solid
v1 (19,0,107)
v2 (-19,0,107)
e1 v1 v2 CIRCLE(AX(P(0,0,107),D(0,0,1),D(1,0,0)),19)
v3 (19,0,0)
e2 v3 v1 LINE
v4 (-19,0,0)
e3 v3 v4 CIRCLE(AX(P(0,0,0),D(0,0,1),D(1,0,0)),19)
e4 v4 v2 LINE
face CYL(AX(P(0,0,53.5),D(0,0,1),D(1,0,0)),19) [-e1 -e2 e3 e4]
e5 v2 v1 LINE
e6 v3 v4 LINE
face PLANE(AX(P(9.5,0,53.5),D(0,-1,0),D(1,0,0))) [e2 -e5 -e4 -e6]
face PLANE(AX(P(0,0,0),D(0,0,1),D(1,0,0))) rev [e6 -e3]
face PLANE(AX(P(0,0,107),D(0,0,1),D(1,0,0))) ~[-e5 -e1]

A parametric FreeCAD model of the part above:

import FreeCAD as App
import Part
import Sketcher
Q = App.Units.Quantity

doc = App.newDocument("Part")
body = doc.addObject("PartDesign::Body", "Body")

# Sketch on XZ plane
sketch1 = body.newObject("Sketcher::SketchObject", "Sketch")
sketch1.AttachmentSupport = (doc.getObject("XZ_Plane"), [""])
sketch1.MapMode = "FlatFace"
sketch1.addGeometry([
    Part.LineSegment(App.Vector(0, 107, 0), App.Vector(0, 0, 0)),
    Part.LineSegment(App.Vector(0, 0, 0), App.Vector(19, 0, 0)),
    Part.LineSegment(App.Vector(19, 0, 0), App.Vector(19, 107, 0)),
    Part.LineSegment(App.Vector(19, 107, 0), App.Vector(0, 107, 0)),
], False)
sketch1.addConstraint([
    Sketcher.Constraint("Coincident", 0, 2, 1, 1),
    Sketcher.Constraint("Coincident", 1, 2, 2, 1),
    Sketcher.Constraint("Coincident", 2, 2, 3, 1),
    Sketcher.Constraint("Coincident", 3, 2, 0, 1),
    Sketcher.Constraint("Vertical", 0),
    Sketcher.Constraint("Horizontal", 1),
    Sketcher.Constraint("Vertical", 2),
    Sketcher.Constraint("Horizontal", 3),
    Sketcher.Constraint("Coincident", 0, 2, -1, 1),
    Sketcher.Constraint("DistanceX", 1, 1, 1, 2, Q("19 mm")),
    Sketcher.Constraint("DistanceY", 0, 2, 0, 1, Q("107 mm")),
])
revolution = body.newObject("PartDesign::Revolution", "Revolution")
revolution.Profile = sketch1
revolution.ReferenceAxis = (sketch1, ["V_Axis"])
revolution.Angle = 180

doc.recompute()
